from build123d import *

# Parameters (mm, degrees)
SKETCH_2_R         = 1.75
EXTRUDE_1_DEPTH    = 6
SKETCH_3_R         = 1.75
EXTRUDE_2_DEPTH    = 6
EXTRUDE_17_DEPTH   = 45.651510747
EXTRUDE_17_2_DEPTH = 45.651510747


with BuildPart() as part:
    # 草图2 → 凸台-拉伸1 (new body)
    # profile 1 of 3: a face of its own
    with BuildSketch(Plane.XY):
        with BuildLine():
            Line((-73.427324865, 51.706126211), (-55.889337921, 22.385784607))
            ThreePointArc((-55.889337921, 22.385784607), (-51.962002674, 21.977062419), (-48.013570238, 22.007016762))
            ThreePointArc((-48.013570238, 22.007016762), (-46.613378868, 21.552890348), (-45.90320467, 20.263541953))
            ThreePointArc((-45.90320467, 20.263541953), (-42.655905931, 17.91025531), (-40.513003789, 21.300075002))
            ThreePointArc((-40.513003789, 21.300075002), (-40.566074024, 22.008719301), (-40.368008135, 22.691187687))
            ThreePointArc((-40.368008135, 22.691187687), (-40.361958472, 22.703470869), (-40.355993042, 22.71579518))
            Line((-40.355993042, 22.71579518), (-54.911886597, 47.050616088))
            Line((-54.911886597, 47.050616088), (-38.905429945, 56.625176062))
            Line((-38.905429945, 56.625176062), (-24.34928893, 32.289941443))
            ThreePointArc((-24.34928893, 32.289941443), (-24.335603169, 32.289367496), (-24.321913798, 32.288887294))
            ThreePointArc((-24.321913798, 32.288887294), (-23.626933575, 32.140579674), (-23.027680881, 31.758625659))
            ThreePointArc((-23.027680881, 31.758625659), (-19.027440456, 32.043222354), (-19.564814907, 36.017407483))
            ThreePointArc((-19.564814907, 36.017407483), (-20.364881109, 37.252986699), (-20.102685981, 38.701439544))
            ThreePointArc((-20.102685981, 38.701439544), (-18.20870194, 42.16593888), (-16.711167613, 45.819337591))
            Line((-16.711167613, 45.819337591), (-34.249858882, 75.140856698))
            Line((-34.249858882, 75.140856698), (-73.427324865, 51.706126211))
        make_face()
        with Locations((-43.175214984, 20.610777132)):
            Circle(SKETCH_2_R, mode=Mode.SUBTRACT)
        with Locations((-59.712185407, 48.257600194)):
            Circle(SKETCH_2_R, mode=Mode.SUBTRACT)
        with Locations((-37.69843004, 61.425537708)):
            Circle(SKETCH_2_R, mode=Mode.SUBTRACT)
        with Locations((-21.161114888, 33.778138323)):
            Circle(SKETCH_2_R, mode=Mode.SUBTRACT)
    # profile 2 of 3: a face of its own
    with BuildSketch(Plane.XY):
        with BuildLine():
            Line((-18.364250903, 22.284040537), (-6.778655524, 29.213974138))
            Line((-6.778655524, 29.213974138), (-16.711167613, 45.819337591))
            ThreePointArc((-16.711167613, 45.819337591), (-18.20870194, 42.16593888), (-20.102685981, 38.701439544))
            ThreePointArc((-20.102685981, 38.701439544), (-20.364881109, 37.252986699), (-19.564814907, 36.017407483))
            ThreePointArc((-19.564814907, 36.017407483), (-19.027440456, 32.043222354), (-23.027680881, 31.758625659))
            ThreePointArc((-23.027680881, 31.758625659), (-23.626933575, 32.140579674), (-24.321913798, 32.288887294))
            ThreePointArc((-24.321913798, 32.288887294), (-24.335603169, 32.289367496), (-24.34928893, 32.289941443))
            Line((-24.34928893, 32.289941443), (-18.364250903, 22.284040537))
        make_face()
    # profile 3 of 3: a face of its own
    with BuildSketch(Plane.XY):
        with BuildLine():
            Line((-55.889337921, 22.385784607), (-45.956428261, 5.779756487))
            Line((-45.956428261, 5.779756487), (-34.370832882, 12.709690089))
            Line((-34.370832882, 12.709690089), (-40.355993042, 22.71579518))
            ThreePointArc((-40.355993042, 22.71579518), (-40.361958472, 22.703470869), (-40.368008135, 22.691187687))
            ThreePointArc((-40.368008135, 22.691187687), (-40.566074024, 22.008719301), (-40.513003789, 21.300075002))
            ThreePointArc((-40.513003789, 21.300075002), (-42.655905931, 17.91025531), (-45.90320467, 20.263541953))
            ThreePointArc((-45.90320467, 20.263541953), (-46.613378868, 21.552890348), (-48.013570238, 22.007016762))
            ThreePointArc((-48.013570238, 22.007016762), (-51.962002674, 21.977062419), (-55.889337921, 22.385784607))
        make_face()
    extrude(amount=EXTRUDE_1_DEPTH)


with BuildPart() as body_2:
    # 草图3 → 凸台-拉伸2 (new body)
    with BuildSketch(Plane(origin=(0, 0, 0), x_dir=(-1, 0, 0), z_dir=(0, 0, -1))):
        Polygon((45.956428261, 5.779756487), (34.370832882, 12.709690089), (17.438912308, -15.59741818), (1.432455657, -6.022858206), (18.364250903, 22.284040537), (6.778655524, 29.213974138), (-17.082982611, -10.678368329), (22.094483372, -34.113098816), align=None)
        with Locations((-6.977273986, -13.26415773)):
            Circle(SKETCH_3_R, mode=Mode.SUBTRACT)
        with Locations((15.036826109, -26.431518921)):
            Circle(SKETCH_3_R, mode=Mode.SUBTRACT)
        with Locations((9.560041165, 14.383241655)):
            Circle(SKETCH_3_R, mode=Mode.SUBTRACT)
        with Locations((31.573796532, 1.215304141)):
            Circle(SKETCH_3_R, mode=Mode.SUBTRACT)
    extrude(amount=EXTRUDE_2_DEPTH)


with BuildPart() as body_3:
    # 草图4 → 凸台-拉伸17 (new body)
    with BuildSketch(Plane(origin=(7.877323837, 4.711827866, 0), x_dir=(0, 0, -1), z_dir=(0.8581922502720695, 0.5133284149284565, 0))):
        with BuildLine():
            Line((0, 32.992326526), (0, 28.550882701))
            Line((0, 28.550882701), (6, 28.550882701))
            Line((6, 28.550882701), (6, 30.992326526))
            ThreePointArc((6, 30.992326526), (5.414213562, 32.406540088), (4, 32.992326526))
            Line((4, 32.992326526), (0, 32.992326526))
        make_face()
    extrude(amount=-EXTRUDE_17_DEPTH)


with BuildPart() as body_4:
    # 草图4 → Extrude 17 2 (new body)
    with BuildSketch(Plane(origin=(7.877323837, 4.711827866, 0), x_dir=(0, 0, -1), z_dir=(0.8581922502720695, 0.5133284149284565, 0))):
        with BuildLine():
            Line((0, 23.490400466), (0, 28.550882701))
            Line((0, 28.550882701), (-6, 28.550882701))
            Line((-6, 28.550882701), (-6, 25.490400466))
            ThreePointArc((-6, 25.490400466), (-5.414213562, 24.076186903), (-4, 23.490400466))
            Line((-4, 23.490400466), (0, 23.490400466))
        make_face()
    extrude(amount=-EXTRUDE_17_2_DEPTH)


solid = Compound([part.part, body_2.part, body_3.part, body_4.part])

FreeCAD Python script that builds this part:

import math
import FreeCAD as App
import Part
import Sketcher
from FreeCAD import Vector
Q = App.Units.Quantity


def add_polygon(sketch, points):
    """Adds a closed chain of lines whose ends are joined by coincident constraints."""
    first, n = sketch.GeometryCount, len(points)
    for a, b in zip(points, points[1:] + points[:1]):
        sketch.addGeometry(Part.LineSegment(App.Vector(*a, 0), App.Vector(*b, 0)), False)
    for i in range(n):
        sketch.addConstraint(Sketcher.Constraint("Coincident", first + i, 2, first + (i + 1) % n, 1))

doc = App.newDocument("Part")
body = doc.addObject("PartDesign::Body", "Body")

# Sketch on XY plane
sketch1 = body.newObject("Sketcher::SketchObject", "Sketch")
sketch1.AttachmentSupport = (doc.getObject("XY_Plane"), [""])
sketch1.MapMode = "FlatFace"
add_polygon(sketch1, [(-73.4, 51.7), (-55.9, 22.4), (-46, 5.8), (-34.4, 12.7), (-40.4, 22.7), (-54.9, 47.1), (-38.9, 56.6), (-24.3, 32.3), (-18.4, 22.3), (-6.8, 29.2), (-16.7, 45.8), (-34.2, 75.1)])  # lines 0-11
sketch1.addGeometry(Part.Circle(Vector(-43.2, 20.6, 0), Vector(0, 0, 1), 1.8), False)  # 12
sketch1.addGeometry(Part.Circle(Vector(-21.2, 33.8, 0), Vector(0, 0, 1), 1.8), False)  # 13
sketch1.addGeometry(Part.Circle(Vector(-59.7, 48.3, 0), Vector(0, 0, 1), 1.8), False)  # 14
sketch1.addGeometry(Part.Circle(Vector(-37.7, 61.4, 0), Vector(0, 0, 1), 1.8), False)  # 15
sketch1.addConstraint([
    Sketcher.Constraint("Equal", 12, 13),
    Sketcher.Constraint("Equal", 13, 14),
    Sketcher.Constraint("Equal", 14, 15),
    Sketcher.Constraint("Parallel", 0, 1),
    Sketcher.Constraint("Perpendicular", 1, 2),
    Sketcher.Constraint("Perpendicular", 2, 3),
    Sketcher.Constraint("Parallel", 3, 4),
    Sketcher.Constraint("Parallel", 4, 6),
    Sketcher.Constraint("Parallel", 6, 7),
    Sketcher.Constraint("Perpendicular", 7, 8),
    Sketcher.Constraint("Perpendicular", 8, 9),
    Sketcher.Constraint("Parallel", 9, 10),
    Sketcher.Constraint("Parallel", 5, 11),
    Sketcher.Constraint("Equal", 2, 8),
    Sketcher.Constraint("Diameter", 12, Q("3.5 mm")),
    Sketcher.Constraint("Distance", 2, Q("13.5 mm")),
    Sketcher.Constraint("DistanceX", 1, 2, 15, 3, Q("8.257998 mm")),
    Sketcher.Constraint("DistanceX", 5, 2, 15, 3, Q("1.207 mm")),
    Sketcher.Constraint("DistanceY", -1, 1, 14, 3, Q("48.2576 mm")),
    Sketcher.Constraint("DistanceX", 12, 3, 13, 3, Q("22.0141 mm")),
    Sketcher.Constraint("DistanceY", 13, 3, 15, 3, Q("27.647399 mm")),
    Sketcher.Constraint("DistanceX", 14, 3, 4, 2, Q("4.800299 mm")),
    Sketcher.Constraint("DistanceY", 7, 2, 6, 2, Q("10.005901 mm")),
    Sketcher.Constraint("DistanceY", 13, 3, 9, 2, Q("12.041199 mm")),
    Sketcher.Constraint("Distance", 1, Q("19.350009 mm")),
    Sketcher.Constraint("Distance", 4, Q("28.355908 mm")),
    Sketcher.Constraint("Distance", 5, Q("18.651511 mm")),
    Sketcher.Constraint("Distance", 6, Q("28.356391 mm")),
    Sketcher.Constraint("Distance", 10, Q("34.166609 mm")),
    Sketcher.Constraint("DistanceY", -1, 1, 13, 3, Q("33.778138 mm")),
    Sketcher.Constraint("DistanceX", 15, 3, -1, 1, Q("37.69843 mm")),
    Sketcher.Constraint("DistanceY", -1, 1, 2, 2, Q("12.70969 mm")),
    Sketcher.Constraint("DistanceX", 6, 2, -1, 1, Q("24.349289 mm")),
    Sketcher.Constraint("DistanceY", 12, 3, 13, 3, Q("13.167361 mm")),
    Sketcher.Constraint("DistanceX", 14, 3, 12, 3, Q("16.53697 mm")),
    Sketcher.Constraint("DistanceY", 12, 3, 3, 2, Q("2.105018 mm")),
])
pad1 = body.newObject("PartDesign::Pad", "Pad")
pad1.Profile = sketch1
pad1.Length = 6
body2 = doc.addObject("PartDesign::Body", "Body001")

# Sketch on XY plane
sketch2 = body2.newObject("Sketcher::SketchObject", "Sketch001")
sketch2.AttachmentSupport = (doc.getObject("XY_Plane001"), [""])
sketch2.MapMode = "FlatFace"
add_polygon(sketch2, [(-46, 5.8), (-34.4, 12.7), (-17.4, -15.6), (-1.4, -6), (-18.4, 22.3), (-6.8, 29.2), (17.1, -10.7), (-22.1, -34.1)])  # lines 0-7
sketch2.addGeometry(Part.Circle(Vector(7, -13.3, 0), Vector(0, 0, 1), 1.8), False)  # 8
sketch2.addGeometry(Part.Circle(Vector(-15, -26.4, 0), Vector(0, 0, 1), 1.8), False)  # 9
sketch2.addGeometry(Part.Circle(Vector(-9.6, 14.4, 0), Vector(0, 0, 1), 1.8), False)  # 10
sketch2.addGeometry(Part.Circle(Vector(-31.6, 1.2, 0), Vector(0, 0, 1), 1.8), False)  # 11
sketch2.addConstraint([
    Sketcher.Constraint("Equal", 8, 9),
    Sketcher.Constraint("Equal", 9, 10),
    Sketcher.Constraint("Equal", 10, 11),
    Sketcher.Constraint("Perpendicular", 0, 1),
    Sketcher.Constraint("Parallel", 1, 3),
    Sketcher.Constraint("Perpendicular", 3, 4),
    Sketcher.Constraint("Perpendicular", 4, 5),
    Sketcher.Constraint("Parallel", 2, 6),
    Sketcher.Constraint("Parallel", 5, 7),
    Sketcher.Constraint("Equal", 0, 4),
    Sketcher.Constraint("Diameter", 8, Q("3.5 mm")),
    Sketcher.Constraint("Distance", 0, Q("13.5 mm")),
    Sketcher.Constraint("DistanceY", 6, 2, -1, 1, Q("34.113099 mm")),
    Sketcher.Constraint("DistanceX", 9, 3, 8, 3, Q("22.0141 mm")),
    Sketcher.Constraint("DistanceY", 8, 3, 10, 3, Q("27.647399 mm")),
    Sketcher.Constraint("DistanceY", 9, 3, 1, 2, Q("10.834101 mm")),
    Sketcher.Constraint("DistanceY", 8, 3, 2, 2, Q("7.2413 mm")),
    Sketcher.Constraint("DistanceY", 10, 3, 3, 2, Q("7.900799 mm")),
    Sketcher.Constraint("DistanceX", 4, 2, 2, 2, Q("5.3462 mm")),
    Sketcher.Constraint("Distance", 2, Q("18.651511 mm")),
    Sketcher.Constraint("DistanceY", 9, 3, -1, 1, Q("26.431519 mm")),
    Sketcher.Constraint("DistanceX", 10, 3, -1, 1, Q("9.560041 mm")),
    Sketcher.Constraint("DistanceY", -1, 1, 10, 3, Q("14.383242 mm")),
    Sketcher.Constraint("DistanceY", -1, 1, 0, 2, Q("12.70969 mm")),
    Sketcher.Constraint("DistanceX", 3, 2, -1, 1, Q("18.364251 mm")),
    Sketcher.Constraint("DistanceX", 11, 3, 9, 3, Q("16.53697 mm")),
    Sketcher.Constraint("DistanceY", 8, 3, 11, 3, Q("14.479462 mm")),
    Sketcher.Constraint("DistanceX", 2, 2, 8, 3, Q("8.40973 mm")),
])
pad2 = body2.newObject("PartDesign::Pad", "Pad001")
pad2.Profile = sketch2
pad2.Length = 6
pad2.Reversed = True
body3 = doc.addObject("PartDesign::Body", "Body002")

# Sketch on an angled plane
sketch3 = body3.newObject("Sketcher::SketchObject", "Sketch002")
sketch3.Placement = App.Placement(Vector(7.877324, 4.711828, 0), App.Rotation(Vector(0, 0, -1), Vector(-0.513328415, 0.85819225, 0), Vector(0.85819225, 0.513328415, 0), "ZXY"))
sketch3.addGeometry([
    Part.LineSegment(Vector(0, 33, 0), Vector(0, 28.6, 0)),  # 0
    Part.LineSegment(Vector(0, 28.6, 0), Vector(6, 28.6, 0)),  # 1
    Part.LineSegment(Vector(6, 28.6, 0), Vector(6, 31, 0)),  # 2
    Part.ArcOfCircle(Part.Circle(Vector(4, 31, 0), Vector(0, 0, 1), 2), math.radians(0), math.radians(90)),  # 3
    Part.LineSegment(Vector(4, 33, 0), Vector(0, 33, 0)),  # 4
], False)
sketch3.addConstraint([
    Sketcher.Constraint("Coincident", 0, 2, 1, 1),
    Sketcher.Constraint("Coincident", 1, 2, 2, 1),
    Sketcher.Constraint("Tangent", 2, 2, 3, 1),
    Sketcher.Constraint("Tangent", 3, 2, 4, 1),
    Sketcher.Constraint("Coincident", 4, 2, 0, 1),
    Sketcher.Constraint("Vertical", 0),
    Sketcher.Constraint("Horizontal", 1),
    Sketcher.Constraint("Vertical", 2),
    Sketcher.Constraint("Horizontal", 4),
    Sketcher.Constraint("PointOnObject", 0, 2, -2),
    Sketcher.Constraint("Radius", 3, Q("2 mm")),
    Sketcher.Constraint("DistanceX", 1, 1, 1, 2, Q("6 mm")),
    Sketcher.Constraint("DistanceY", 0, 2, 0, 1, Q("4.441444 mm")),
    Sketcher.Constraint("DistanceY", -1, 1, 3, 3, Q("30.992327 mm")),
])
pad3 = body3.newObject("PartDesign::Pad", "Pad002")
pad3.Profile = sketch3
pad3.Length = 45.651511
pad3.Reversed = True
body4 = doc.addObject("PartDesign::Body", "Body003")

# Sketch on an angled plane
sketch4 = body4.newObject("Sketcher::SketchObject", "Sketch003")
sketch4.Placement = App.Placement(Vector(7.877324, 4.711828, 0), App.Rotation(Vector(0, 0, -1), Vector(-0.513328415, 0.85819225, 0), Vector(0.85819225, 0.513328415, 0), "ZXY"))
sketch4.addGeometry([
    Part.LineSegment(Vector(0, 23.5, 0), Vector(0, 28.6, 0)),  # 0
    Part.LineSegment(Vector(0, 28.6, 0), Vector(-6, 28.6, 0)),  # 1
    Part.LineSegment(Vector(-6, 28.6, 0), Vector(-6, 25.5, 0)),  # 2
    Part.ArcOfCircle(Part.Circle(Vector(-4, 25.5, 0), Vector(0, 0, 1), 2), math.radians(180), math.radians(270)),  # 3
    Part.LineSegment(Vector(-4, 23.5, 0), Vector(0, 23.5, 0)),  # 4
], False)
sketch4.addConstraint([
    Sketcher.Constraint("Coincident", 0, 2, 1, 1),
    Sketcher.Constraint("Coincident", 1, 2, 2, 1),
    Sketcher.Constraint("Tangent", 2, 2, 3, 1),
    Sketcher.Constraint("Tangent", 3, 2, 4, 1),
    Sketcher.Constraint("Coincident", 4, 2, 0, 1),
    Sketcher.Constraint("Vertical", 0),
    Sketcher.Constraint("Horizontal", 1),
    Sketcher.Constraint("Vertical", 2),
    Sketcher.Constraint("Horizontal", 4),
    Sketcher.Constraint("PointOnObject", 0, 2, -2),
    Sketcher.Constraint("Radius", 3, Q("2 mm")),
    Sketcher.Constraint("DistanceX", 1, 2, 1, 1, Q("6 mm")),
    Sketcher.Constraint("DistanceY", -1, 1, 3, 3, Q("25.4904 mm")),
    Sketcher.Constraint("DistanceY", 0, 1, 0, 2, Q("5.060482 mm")),
])
pad4 = body4.newObject("PartDesign::Pad", "Pad003")
pad4.Profile = sketch4
pad4.Length = 45.651511
pad4.Reversed = True

doc.recompute()
